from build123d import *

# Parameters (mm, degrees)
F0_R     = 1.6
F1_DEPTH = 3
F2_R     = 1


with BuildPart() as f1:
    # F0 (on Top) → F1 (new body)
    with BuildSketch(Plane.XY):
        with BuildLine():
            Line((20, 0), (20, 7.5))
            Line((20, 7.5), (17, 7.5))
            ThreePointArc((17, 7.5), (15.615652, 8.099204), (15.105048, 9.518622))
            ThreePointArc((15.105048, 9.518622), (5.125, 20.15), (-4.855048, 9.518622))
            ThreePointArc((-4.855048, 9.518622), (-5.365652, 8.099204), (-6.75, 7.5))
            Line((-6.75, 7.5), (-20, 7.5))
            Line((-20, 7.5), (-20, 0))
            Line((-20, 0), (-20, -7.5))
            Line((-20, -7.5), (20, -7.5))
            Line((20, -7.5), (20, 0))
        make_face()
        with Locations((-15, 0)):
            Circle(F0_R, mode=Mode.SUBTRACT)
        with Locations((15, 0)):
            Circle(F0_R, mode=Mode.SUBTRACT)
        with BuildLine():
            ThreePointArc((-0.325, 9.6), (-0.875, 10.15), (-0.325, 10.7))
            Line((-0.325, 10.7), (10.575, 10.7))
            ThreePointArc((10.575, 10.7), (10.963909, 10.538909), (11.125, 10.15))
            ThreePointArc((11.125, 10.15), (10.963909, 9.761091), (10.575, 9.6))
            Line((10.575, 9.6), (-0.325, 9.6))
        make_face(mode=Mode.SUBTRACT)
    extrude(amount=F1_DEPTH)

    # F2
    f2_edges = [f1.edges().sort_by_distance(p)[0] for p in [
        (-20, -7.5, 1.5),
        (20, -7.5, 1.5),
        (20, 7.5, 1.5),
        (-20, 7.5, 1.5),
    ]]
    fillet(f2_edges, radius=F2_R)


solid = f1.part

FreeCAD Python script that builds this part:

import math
import FreeCAD as App
import Part
import Sketcher

V = App.Vector
Q = App.Units.Quantity


def edges_at(feature, points):
    """Names of the edges that pass closest to the given points."""
    edges = feature.Shape.Edges
    near = lambda p: min(range(len(edges)), key=lambda i: edges[i].distToShape(Part.Vertex(*p))[0])
    return sorted({f"Edge{near(p) + 1}" for p in points})

doc = App.newDocument("Part")
params = doc.addObject("Spreadsheet::Sheet", "Params")
for row, (alias, value) in enumerate([
    ("sketch1_radius", "10 mm"),
    ("sketch1_diameter", "3.2 mm"),
    ("sketch1_width", "3 mm"),
    ("sketch1_width2", "40 mm"),
    ("sketch1_height", "15 mm"),
    ("pad1_length", "3 mm"),
    ("fillet_radius", "1 mm"),
], start=1):
    params.set(f"A{row}", alias)
    params.set(f"B{row}", "=" + value)
    params.setAlias(f"B{row}", alias)

body = doc.addObject("PartDesign::Body", "Body")

# Sketch on XY plane
sketch1 = doc.addObject("Sketcher::SketchObject", "Sketch")
body.addObject(sketch1)
sketch1.AttachmentSupport = (doc.XY_Plane, [""])
sketch1.MapMode = "FlatFace"
sketch1.addGeometry([
    Part.LineSegment(V(20, 7.5, 0), V(17, 7.5, 0)),  # 0
    Part.ArcOfCircle(Part.Circle(V(17, 9.4, 0), V(0, 0, 1), 1.9), math.radians(176), math.radians(270)),  # 1
    Part.ArcOfCircle(Part.Circle(V(5.1, 10.2, 0), V(0, 0, 1), 10), math.radians(-4), math.radians(184)),  # 2
    Part.ArcOfCircle(Part.Circle(V(-6.8, 9.4, 0), V(0, 0, 1), 1.9), math.radians(-90), math.radians(4)),  # 3
    Part.LineSegment(V(-6.8, 7.5, 0), V(-20, 7.5, 0)),  # 4
    Part.LineSegment(V(-20, 7.5, 0), V(-20, -7.5, 0)),  # 5
    Part.LineSegment(V(-20, -7.5, 0), V(20, -7.5, 0)),  # 6
    Part.LineSegment(V(20, -7.5, 0), V(20, 7.5, 0)),  # 7
    Part.Circle(V(-15, 0, 0), V(0, 0, 1), 1.6),  # 8
    Part.Circle(V(15, 0, 0), V(0, 0, 1), 1.6),  # 9
    Part.LineSegment(V(10.6, 9.6, 0), V(-0.3, 9.6, 0)),  # 10
    Part.ArcOfCircle(Part.Circle(V(-0.3, 10.2, 0), V(0, 0, 1), 0.6), math.radians(90), math.radians(270)),  # 11
    Part.LineSegment(V(-0.3, 10.7, 0), V(10.6, 10.7, 0)),  # 12
    Part.ArcOfCircle(Part.Circle(V(10.6, 10.2, 0), V(0, 0, 1), 0.5), math.radians(0), math.radians(90)),  # 13
    Part.ArcOfCircle(Part.Circle(V(10.6, 10.1, 0), V(0, 0, 1), 0.5), math.radians(-90), math.radians(0)),  # 14
], False)
sketch1.addConstraint([
    Sketcher.Constraint("Tangent", 0, 2, 1, 2),
    Sketcher.Constraint("Tangent", 1, 1, 2, 1),
    Sketcher.Constraint("Tangent", 2, 2, 3, 2),
    Sketcher.Constraint("Tangent", 3, 1, 4, 1),
    Sketcher.Constraint("Coincident", 4, 2, 5, 1),
    Sketcher.Constraint("Coincident", 5, 2, 6, 1),
    Sketcher.Constraint("Coincident", 6, 2, 7, 1),
    Sketcher.Constraint("Coincident", 7, 2, 0, 1),
    Sketcher.Constraint("Tangent", 10, 2, 11, 2),
    Sketcher.Constraint("Tangent", 11, 1, 12, 1),
    Sketcher.Constraint("Tangent", 12, 2, 13, 2),
    Sketcher.Constraint("Coincident", 13, 1, 14, 2),
    Sketcher.Constraint("Tangent", 14, 1, 10, 1),
    Sketcher.Constraint("Horizontal", 0),
    Sketcher.Constraint("Horizontal", 4),
    Sketcher.Constraint("Vertical", 5),
    Sketcher.Constraint("Horizontal", 6),
    Sketcher.Constraint("Vertical", 7),
    Sketcher.Constraint("Horizontal", 10),
    Sketcher.Constraint("Horizontal", 12),
    Sketcher.Constraint("Coincident", 14, 3, 13, 3),
    Sketcher.Constraint("Equal", 1, 3),
    Sketcher.Constraint("Equal", 8, 9),
    Sketcher.Constraint("Symmetric", 8, 3, 9, 3, -1, 1),
    Sketcher.Constraint("Symmetric", 4, 2, 6, 2, -1, 1),
    Sketcher.Constraint("PointOnObject", 8, 3, -1),
    Sketcher.Constraint("Horizontal", 1, 3, 3, 3),
    Sketcher.Constraint("Horizontal", 2, 3, 11, 3),
    Sketcher.Constraint("Horizontal", 14, 3, 13, 1),
    Sketcher.Constraint("Radius", 2, Q("10 mm")),
    Sketcher.Constraint("Diameter", 8, Q("3.2 mm")),
    Sketcher.Constraint("DistanceX", 0, 2, 0, 1, Q("3 mm")),
    Sketcher.Constraint("DistanceX", 6, 1, 6, 2, Q("40 mm")),
    Sketcher.Constraint("DistanceY", 5, 2, 5, 1, Q("15 mm")),
    Sketcher.Constraint("Radius", 11, Q("0.55 mm")),
    Sketcher.Constraint("DistanceX", 10, 2, 10, 1, Q("10.9 mm")),
    Sketcher.Constraint("DistanceX", 8, 3, -1, 1, Q("15 mm")),
    Sketcher.Constraint("DistanceX", 4, 2, 4, 1, Q("13.25 mm")),
    Sketcher.Constraint("DistanceY", -1, 1, 10, 2, Q("9.6 mm")),
    Sketcher.Constraint("DistanceX", 11, 3, 2, 3, Q("5.45 mm")),
])
sketch1.setExpression("Constraints[29]", "Params.sketch1_radius")
sketch1.setExpression("Constraints[30]", "Params.sketch1_diameter")
sketch1.setExpression("Constraints[31]", "Params.sketch1_width")
sketch1.setExpression("Constraints[32]", "Params.sketch1_width2")
sketch1.setExpression("Constraints[33]", "Params.sketch1_height")
pad1 = doc.addObject("PartDesign::Pad", "Pad")
body.addObject(pad1)
pad1.Profile = sketch1
pad1.setExpression("Length", "Params.pad1_length")
doc.recompute()

fillet = doc.addObject("PartDesign::Fillet", "Fillet")
body.addObject(fillet)
fillet.Base = (pad1, edges_at(pad1, [
    (-20, -7.5, 1.5),
    (20, -7.5, 1.5),
    (20, 7.5, 1.5),
    (-20, 7.5, 1.5),
]))
fillet.setExpression("Radius", "Params.fillet_radius")

doc.recompute()
